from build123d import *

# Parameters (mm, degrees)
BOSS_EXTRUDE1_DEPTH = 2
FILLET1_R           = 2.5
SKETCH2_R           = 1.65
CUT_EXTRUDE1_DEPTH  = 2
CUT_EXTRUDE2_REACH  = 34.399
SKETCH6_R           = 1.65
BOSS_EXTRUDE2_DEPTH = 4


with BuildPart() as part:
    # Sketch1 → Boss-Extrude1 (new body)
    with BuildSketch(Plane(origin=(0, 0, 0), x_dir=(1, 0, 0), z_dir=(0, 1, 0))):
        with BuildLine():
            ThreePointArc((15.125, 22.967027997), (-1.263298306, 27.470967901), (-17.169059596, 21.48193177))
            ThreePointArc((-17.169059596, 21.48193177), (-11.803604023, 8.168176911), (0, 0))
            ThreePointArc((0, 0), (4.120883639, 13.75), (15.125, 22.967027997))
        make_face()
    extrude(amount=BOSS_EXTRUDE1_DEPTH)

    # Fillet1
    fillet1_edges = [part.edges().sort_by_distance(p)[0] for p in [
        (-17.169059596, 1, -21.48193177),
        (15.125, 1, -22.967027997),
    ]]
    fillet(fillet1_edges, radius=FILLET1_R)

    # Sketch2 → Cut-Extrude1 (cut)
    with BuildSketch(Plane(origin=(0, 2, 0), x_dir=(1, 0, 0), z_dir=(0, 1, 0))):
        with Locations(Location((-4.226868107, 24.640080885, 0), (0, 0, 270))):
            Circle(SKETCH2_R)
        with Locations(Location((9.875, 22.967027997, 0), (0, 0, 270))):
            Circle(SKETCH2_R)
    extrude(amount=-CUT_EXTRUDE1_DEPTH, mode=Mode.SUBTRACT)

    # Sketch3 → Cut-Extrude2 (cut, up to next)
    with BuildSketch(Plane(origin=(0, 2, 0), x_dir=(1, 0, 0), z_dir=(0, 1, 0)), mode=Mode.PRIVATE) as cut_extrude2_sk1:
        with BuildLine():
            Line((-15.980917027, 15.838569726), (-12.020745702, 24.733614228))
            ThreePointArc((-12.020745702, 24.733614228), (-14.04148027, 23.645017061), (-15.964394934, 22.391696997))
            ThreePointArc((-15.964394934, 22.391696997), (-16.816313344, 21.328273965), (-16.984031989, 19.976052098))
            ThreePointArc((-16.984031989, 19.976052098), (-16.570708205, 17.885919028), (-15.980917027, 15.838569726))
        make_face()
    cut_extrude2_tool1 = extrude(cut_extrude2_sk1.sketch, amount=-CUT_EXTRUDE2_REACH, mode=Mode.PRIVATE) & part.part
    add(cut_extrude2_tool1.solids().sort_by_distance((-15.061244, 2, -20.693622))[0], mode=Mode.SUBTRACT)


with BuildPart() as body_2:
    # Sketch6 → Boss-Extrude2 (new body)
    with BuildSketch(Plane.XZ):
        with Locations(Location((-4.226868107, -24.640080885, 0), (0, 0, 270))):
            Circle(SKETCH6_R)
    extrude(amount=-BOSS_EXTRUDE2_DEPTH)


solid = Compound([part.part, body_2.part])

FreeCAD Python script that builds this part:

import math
import FreeCAD as App
import Part
import Sketcher

V = App.Vector
Q = App.Units.Quantity


def edges_at(feature, points):
    """Names of the edges that pass closest to the given points."""
    edges = feature.Shape.Edges
    near = lambda p: min(range(len(edges)), key=lambda i: edges[i].distToShape(Part.Vertex(*p))[0])
    return sorted({f"Edge{near(p) + 1}" for p in points})

doc = App.newDocument("Part")
body = doc.addObject("PartDesign::Body", "Body")

sketch1 = body.newObject("Sketcher::SketchObject", "Sketch")
sketch1.AttachmentSupport = (doc.getObject("XZ_Plane"), [""])
sketch1.MapMode = "FlatFace"
sketch1.addGeometry(Part.ArcOfCircle(Part.Circle(V(0, 0, 0), V(0, 0, 1), 27.5), math.radians(-128.632987), math.radians(-56.632987)), False)
sketch1.addGeometry(Part.ArcOfCircle(Part.Circle(V(7.725425, -23.776413, 0), V(0, 0, 1), 25), math.radians(108), math.radians(174.734026)), False)
sketch1.addGeometry(Part.ArcOfCircle(Part.Circle(V(25, 0, 0), V(0, 0, 1), 25), math.radians(180), math.radians(246.734026)), False)
sketch1.addConstraint(Sketcher.Constraint("Coincident", 0, 1, 1, 2))
sketch1.addConstraint(Sketcher.Constraint("Coincident", 1, 1, 2, 1))
sketch1.addConstraint(Sketcher.Constraint("Coincident", 2, 2, 0, 2))
sketch1.addConstraint(Sketcher.Constraint("Coincident", 0, 3, -1, 1))
sketch1.addConstraint(Sketcher.Constraint("Coincident", 1, 1, -1, 1))
sketch1.addConstraint(Sketcher.Constraint("Equal", 1, 2))
sketch1.addConstraint(Sketcher.Constraint("PointOnObject", 2, 3, -1))
sketch1.addConstraint(Sketcher.Constraint("Radius", 1, Q("25 mm")))
sketch1.addConstraint(Sketcher.Constraint("Radius", 0, Q("27.5 mm")))
sketch1.addConstraint(Sketcher.Constraint("DistanceX", 0, 1, -1, 1, Q("17.16906 mm")))
pad1 = body.newObject("PartDesign::Pad", "Pad")
pad1.Profile = sketch1
pad1.Length = 2
pad1.Reversed = True
doc.recompute()

fillet = body.newObject("PartDesign::Fillet", "Fillet")
fillet.Base = (pad1, edges_at(pad1, [(-17.169, 1, -21.482), (15.125, 1, -22.967)]))
fillet.Radius = 2.5

sketch2 = body.newObject("Sketcher::SketchObject", "Sketch001")
sketch2.AttachmentSupport = (doc.getObject("XZ_Plane"), [""])
sketch2.MapMode = "FlatFace"
sketch2.AttachmentOffset = App.Placement(V(0, 0, -2), App.Rotation())
sketch2.addGeometry(Part.Circle(V(-4.226868, -24.640081, 0), V(0, 0, 1), 1.65), False)
sketch2.addGeometry(Part.Circle(V(9.875, -22.967028, 0), V(0, 0, 1), 1.65), False)
sketch2.addConstraint(Sketcher.Constraint("Equal", 0, 1))
sketch2.addConstraint(Sketcher.Constraint("Diameter", 0, Q("3.3 mm")))
sketch2.addConstraint(Sketcher.Constraint("DistanceX", -1, 1, 1, 3, Q("9.875 mm")))
sketch2.addConstraint(Sketcher.Constraint("DistanceX", 0, 3, -1, 1, Q("4.226868 mm")))
sketch2.addConstraint(Sketcher.Constraint("DistanceY", 0, 3, -1, 1, Q("24.640081 mm")))
sketch2.addConstraint(Sketcher.Constraint("DistanceY", 1, 3, -1, 1, Q("22.967028 mm")))
pocket1 = body.newObject("PartDesign::Pocket", "Pocket")
pocket1.Profile = sketch2
pocket1.Length = 2
pocket1.Reversed = True

sketch3 = body.newObject("Sketcher::SketchObject", "Sketch002")
sketch3.AttachmentSupport = (doc.getObject("XZ_Plane"), [""])
sketch3.MapMode = "FlatFace"
sketch3.AttachmentOffset = App.Placement(V(0, 0, -2), App.Rotation())
sketch3.addGeometry(Part.LineSegment(V(-15.980917, -15.83857, 0), V(-12.020746, -24.733614, 0)), False)
sketch3.addGeometry(Part.ArcOfCircle(Part.Circle(V(0, 0, 0), V(0, 0, 1), 27.5), math.radians(-125.487368), math.radians(-115.920144)), False)
sketch3.addGeometry(Part.ArcOfCircle(Part.Circle(V(-14.513086, -20.356088, 0), V(0, 0, 1), 2.5), math.radians(171.256316), math.radians(234.512632)), False)
sketch3.addGeometry(Part.ArcOfCircle(Part.Circle(V(7.725425, -23.776413, 0), V(0, 0, 1), 25), math.radians(161.487368), math.radians(171.256316)), False)
sketch3.addConstraint(Sketcher.Constraint("Coincident", 0, 2, 1, 2))
sketch3.addConstraint(Sketcher.Constraint("Tangent", 1, 1, 2, 2))
sketch3.addConstraint(Sketcher.Constraint("Tangent", 2, 1, 3, 2))
sketch3.addConstraint(Sketcher.Constraint("Coincident", 3, 1, 0, 1))
sketch3.addConstraint(Sketcher.Constraint("Coincident", 1, 3, -1, 1))
sketch3.addConstraint(Sketcher.Constraint("Radius", 3, Q("25 mm")))
sketch3.addConstraint(Sketcher.Constraint("Radius", 1, Q("27.5 mm")))
sketch3.addConstraint(Sketcher.Constraint("Radius", 2, Q("2.5 mm")))
sketch3.addConstraint(Sketcher.Constraint("DistanceY", 0, 2, 3, 3, Q("0.957201 mm")))
sketch3.addConstraint(Sketcher.Constraint("DistanceY", 2, 3, -1, 1, Q("20.356088 mm")))
sketch3.addConstraint(Sketcher.Constraint("DistanceX", 2, 1, -1, 1, Q("16.984032 mm")))
sketch3.addConstraint(Sketcher.Constraint("DistanceY", 3, 1, -1, 1, Q("15.83857 mm")))
pocket2 = body.newObject("PartDesign::Pocket", "Pocket001")
pocket2.Profile = sketch3
pocket2.Type = "UpToFirst"
pocket2.Reversed = True
body2 = doc.addObject("PartDesign::Body", "Body001")

sketch4 = body2.newObject("Sketcher::SketchObject", "Sketch003")
sketch4.AttachmentSupport = (doc.getObject("XZ_Plane001"), [""])
sketch4.MapMode = "FlatFace"
sketch4.addGeometry(Part.Circle(V(-4.226868, -24.640081, 0), V(0, 0, 1), 1.65), False)
sketch4.addConstraint(Sketcher.Constraint("Diameter", 0, Q("3.3 mm")))
sketch4.addConstraint(Sketcher.Constraint("DistanceX", 0, 3, -1, 1, Q("4.226868 mm")))
sketch4.addConstraint(Sketcher.Constraint("DistanceY", 0, 3, -1, 1, Q("24.640081 mm")))
pad2 = body2.newObject("PartDesign::Pad", "Pad001")
pad2.Profile = sketch4
pad2.Length = 4
pad2.Reversed = True

doc.recompute()
